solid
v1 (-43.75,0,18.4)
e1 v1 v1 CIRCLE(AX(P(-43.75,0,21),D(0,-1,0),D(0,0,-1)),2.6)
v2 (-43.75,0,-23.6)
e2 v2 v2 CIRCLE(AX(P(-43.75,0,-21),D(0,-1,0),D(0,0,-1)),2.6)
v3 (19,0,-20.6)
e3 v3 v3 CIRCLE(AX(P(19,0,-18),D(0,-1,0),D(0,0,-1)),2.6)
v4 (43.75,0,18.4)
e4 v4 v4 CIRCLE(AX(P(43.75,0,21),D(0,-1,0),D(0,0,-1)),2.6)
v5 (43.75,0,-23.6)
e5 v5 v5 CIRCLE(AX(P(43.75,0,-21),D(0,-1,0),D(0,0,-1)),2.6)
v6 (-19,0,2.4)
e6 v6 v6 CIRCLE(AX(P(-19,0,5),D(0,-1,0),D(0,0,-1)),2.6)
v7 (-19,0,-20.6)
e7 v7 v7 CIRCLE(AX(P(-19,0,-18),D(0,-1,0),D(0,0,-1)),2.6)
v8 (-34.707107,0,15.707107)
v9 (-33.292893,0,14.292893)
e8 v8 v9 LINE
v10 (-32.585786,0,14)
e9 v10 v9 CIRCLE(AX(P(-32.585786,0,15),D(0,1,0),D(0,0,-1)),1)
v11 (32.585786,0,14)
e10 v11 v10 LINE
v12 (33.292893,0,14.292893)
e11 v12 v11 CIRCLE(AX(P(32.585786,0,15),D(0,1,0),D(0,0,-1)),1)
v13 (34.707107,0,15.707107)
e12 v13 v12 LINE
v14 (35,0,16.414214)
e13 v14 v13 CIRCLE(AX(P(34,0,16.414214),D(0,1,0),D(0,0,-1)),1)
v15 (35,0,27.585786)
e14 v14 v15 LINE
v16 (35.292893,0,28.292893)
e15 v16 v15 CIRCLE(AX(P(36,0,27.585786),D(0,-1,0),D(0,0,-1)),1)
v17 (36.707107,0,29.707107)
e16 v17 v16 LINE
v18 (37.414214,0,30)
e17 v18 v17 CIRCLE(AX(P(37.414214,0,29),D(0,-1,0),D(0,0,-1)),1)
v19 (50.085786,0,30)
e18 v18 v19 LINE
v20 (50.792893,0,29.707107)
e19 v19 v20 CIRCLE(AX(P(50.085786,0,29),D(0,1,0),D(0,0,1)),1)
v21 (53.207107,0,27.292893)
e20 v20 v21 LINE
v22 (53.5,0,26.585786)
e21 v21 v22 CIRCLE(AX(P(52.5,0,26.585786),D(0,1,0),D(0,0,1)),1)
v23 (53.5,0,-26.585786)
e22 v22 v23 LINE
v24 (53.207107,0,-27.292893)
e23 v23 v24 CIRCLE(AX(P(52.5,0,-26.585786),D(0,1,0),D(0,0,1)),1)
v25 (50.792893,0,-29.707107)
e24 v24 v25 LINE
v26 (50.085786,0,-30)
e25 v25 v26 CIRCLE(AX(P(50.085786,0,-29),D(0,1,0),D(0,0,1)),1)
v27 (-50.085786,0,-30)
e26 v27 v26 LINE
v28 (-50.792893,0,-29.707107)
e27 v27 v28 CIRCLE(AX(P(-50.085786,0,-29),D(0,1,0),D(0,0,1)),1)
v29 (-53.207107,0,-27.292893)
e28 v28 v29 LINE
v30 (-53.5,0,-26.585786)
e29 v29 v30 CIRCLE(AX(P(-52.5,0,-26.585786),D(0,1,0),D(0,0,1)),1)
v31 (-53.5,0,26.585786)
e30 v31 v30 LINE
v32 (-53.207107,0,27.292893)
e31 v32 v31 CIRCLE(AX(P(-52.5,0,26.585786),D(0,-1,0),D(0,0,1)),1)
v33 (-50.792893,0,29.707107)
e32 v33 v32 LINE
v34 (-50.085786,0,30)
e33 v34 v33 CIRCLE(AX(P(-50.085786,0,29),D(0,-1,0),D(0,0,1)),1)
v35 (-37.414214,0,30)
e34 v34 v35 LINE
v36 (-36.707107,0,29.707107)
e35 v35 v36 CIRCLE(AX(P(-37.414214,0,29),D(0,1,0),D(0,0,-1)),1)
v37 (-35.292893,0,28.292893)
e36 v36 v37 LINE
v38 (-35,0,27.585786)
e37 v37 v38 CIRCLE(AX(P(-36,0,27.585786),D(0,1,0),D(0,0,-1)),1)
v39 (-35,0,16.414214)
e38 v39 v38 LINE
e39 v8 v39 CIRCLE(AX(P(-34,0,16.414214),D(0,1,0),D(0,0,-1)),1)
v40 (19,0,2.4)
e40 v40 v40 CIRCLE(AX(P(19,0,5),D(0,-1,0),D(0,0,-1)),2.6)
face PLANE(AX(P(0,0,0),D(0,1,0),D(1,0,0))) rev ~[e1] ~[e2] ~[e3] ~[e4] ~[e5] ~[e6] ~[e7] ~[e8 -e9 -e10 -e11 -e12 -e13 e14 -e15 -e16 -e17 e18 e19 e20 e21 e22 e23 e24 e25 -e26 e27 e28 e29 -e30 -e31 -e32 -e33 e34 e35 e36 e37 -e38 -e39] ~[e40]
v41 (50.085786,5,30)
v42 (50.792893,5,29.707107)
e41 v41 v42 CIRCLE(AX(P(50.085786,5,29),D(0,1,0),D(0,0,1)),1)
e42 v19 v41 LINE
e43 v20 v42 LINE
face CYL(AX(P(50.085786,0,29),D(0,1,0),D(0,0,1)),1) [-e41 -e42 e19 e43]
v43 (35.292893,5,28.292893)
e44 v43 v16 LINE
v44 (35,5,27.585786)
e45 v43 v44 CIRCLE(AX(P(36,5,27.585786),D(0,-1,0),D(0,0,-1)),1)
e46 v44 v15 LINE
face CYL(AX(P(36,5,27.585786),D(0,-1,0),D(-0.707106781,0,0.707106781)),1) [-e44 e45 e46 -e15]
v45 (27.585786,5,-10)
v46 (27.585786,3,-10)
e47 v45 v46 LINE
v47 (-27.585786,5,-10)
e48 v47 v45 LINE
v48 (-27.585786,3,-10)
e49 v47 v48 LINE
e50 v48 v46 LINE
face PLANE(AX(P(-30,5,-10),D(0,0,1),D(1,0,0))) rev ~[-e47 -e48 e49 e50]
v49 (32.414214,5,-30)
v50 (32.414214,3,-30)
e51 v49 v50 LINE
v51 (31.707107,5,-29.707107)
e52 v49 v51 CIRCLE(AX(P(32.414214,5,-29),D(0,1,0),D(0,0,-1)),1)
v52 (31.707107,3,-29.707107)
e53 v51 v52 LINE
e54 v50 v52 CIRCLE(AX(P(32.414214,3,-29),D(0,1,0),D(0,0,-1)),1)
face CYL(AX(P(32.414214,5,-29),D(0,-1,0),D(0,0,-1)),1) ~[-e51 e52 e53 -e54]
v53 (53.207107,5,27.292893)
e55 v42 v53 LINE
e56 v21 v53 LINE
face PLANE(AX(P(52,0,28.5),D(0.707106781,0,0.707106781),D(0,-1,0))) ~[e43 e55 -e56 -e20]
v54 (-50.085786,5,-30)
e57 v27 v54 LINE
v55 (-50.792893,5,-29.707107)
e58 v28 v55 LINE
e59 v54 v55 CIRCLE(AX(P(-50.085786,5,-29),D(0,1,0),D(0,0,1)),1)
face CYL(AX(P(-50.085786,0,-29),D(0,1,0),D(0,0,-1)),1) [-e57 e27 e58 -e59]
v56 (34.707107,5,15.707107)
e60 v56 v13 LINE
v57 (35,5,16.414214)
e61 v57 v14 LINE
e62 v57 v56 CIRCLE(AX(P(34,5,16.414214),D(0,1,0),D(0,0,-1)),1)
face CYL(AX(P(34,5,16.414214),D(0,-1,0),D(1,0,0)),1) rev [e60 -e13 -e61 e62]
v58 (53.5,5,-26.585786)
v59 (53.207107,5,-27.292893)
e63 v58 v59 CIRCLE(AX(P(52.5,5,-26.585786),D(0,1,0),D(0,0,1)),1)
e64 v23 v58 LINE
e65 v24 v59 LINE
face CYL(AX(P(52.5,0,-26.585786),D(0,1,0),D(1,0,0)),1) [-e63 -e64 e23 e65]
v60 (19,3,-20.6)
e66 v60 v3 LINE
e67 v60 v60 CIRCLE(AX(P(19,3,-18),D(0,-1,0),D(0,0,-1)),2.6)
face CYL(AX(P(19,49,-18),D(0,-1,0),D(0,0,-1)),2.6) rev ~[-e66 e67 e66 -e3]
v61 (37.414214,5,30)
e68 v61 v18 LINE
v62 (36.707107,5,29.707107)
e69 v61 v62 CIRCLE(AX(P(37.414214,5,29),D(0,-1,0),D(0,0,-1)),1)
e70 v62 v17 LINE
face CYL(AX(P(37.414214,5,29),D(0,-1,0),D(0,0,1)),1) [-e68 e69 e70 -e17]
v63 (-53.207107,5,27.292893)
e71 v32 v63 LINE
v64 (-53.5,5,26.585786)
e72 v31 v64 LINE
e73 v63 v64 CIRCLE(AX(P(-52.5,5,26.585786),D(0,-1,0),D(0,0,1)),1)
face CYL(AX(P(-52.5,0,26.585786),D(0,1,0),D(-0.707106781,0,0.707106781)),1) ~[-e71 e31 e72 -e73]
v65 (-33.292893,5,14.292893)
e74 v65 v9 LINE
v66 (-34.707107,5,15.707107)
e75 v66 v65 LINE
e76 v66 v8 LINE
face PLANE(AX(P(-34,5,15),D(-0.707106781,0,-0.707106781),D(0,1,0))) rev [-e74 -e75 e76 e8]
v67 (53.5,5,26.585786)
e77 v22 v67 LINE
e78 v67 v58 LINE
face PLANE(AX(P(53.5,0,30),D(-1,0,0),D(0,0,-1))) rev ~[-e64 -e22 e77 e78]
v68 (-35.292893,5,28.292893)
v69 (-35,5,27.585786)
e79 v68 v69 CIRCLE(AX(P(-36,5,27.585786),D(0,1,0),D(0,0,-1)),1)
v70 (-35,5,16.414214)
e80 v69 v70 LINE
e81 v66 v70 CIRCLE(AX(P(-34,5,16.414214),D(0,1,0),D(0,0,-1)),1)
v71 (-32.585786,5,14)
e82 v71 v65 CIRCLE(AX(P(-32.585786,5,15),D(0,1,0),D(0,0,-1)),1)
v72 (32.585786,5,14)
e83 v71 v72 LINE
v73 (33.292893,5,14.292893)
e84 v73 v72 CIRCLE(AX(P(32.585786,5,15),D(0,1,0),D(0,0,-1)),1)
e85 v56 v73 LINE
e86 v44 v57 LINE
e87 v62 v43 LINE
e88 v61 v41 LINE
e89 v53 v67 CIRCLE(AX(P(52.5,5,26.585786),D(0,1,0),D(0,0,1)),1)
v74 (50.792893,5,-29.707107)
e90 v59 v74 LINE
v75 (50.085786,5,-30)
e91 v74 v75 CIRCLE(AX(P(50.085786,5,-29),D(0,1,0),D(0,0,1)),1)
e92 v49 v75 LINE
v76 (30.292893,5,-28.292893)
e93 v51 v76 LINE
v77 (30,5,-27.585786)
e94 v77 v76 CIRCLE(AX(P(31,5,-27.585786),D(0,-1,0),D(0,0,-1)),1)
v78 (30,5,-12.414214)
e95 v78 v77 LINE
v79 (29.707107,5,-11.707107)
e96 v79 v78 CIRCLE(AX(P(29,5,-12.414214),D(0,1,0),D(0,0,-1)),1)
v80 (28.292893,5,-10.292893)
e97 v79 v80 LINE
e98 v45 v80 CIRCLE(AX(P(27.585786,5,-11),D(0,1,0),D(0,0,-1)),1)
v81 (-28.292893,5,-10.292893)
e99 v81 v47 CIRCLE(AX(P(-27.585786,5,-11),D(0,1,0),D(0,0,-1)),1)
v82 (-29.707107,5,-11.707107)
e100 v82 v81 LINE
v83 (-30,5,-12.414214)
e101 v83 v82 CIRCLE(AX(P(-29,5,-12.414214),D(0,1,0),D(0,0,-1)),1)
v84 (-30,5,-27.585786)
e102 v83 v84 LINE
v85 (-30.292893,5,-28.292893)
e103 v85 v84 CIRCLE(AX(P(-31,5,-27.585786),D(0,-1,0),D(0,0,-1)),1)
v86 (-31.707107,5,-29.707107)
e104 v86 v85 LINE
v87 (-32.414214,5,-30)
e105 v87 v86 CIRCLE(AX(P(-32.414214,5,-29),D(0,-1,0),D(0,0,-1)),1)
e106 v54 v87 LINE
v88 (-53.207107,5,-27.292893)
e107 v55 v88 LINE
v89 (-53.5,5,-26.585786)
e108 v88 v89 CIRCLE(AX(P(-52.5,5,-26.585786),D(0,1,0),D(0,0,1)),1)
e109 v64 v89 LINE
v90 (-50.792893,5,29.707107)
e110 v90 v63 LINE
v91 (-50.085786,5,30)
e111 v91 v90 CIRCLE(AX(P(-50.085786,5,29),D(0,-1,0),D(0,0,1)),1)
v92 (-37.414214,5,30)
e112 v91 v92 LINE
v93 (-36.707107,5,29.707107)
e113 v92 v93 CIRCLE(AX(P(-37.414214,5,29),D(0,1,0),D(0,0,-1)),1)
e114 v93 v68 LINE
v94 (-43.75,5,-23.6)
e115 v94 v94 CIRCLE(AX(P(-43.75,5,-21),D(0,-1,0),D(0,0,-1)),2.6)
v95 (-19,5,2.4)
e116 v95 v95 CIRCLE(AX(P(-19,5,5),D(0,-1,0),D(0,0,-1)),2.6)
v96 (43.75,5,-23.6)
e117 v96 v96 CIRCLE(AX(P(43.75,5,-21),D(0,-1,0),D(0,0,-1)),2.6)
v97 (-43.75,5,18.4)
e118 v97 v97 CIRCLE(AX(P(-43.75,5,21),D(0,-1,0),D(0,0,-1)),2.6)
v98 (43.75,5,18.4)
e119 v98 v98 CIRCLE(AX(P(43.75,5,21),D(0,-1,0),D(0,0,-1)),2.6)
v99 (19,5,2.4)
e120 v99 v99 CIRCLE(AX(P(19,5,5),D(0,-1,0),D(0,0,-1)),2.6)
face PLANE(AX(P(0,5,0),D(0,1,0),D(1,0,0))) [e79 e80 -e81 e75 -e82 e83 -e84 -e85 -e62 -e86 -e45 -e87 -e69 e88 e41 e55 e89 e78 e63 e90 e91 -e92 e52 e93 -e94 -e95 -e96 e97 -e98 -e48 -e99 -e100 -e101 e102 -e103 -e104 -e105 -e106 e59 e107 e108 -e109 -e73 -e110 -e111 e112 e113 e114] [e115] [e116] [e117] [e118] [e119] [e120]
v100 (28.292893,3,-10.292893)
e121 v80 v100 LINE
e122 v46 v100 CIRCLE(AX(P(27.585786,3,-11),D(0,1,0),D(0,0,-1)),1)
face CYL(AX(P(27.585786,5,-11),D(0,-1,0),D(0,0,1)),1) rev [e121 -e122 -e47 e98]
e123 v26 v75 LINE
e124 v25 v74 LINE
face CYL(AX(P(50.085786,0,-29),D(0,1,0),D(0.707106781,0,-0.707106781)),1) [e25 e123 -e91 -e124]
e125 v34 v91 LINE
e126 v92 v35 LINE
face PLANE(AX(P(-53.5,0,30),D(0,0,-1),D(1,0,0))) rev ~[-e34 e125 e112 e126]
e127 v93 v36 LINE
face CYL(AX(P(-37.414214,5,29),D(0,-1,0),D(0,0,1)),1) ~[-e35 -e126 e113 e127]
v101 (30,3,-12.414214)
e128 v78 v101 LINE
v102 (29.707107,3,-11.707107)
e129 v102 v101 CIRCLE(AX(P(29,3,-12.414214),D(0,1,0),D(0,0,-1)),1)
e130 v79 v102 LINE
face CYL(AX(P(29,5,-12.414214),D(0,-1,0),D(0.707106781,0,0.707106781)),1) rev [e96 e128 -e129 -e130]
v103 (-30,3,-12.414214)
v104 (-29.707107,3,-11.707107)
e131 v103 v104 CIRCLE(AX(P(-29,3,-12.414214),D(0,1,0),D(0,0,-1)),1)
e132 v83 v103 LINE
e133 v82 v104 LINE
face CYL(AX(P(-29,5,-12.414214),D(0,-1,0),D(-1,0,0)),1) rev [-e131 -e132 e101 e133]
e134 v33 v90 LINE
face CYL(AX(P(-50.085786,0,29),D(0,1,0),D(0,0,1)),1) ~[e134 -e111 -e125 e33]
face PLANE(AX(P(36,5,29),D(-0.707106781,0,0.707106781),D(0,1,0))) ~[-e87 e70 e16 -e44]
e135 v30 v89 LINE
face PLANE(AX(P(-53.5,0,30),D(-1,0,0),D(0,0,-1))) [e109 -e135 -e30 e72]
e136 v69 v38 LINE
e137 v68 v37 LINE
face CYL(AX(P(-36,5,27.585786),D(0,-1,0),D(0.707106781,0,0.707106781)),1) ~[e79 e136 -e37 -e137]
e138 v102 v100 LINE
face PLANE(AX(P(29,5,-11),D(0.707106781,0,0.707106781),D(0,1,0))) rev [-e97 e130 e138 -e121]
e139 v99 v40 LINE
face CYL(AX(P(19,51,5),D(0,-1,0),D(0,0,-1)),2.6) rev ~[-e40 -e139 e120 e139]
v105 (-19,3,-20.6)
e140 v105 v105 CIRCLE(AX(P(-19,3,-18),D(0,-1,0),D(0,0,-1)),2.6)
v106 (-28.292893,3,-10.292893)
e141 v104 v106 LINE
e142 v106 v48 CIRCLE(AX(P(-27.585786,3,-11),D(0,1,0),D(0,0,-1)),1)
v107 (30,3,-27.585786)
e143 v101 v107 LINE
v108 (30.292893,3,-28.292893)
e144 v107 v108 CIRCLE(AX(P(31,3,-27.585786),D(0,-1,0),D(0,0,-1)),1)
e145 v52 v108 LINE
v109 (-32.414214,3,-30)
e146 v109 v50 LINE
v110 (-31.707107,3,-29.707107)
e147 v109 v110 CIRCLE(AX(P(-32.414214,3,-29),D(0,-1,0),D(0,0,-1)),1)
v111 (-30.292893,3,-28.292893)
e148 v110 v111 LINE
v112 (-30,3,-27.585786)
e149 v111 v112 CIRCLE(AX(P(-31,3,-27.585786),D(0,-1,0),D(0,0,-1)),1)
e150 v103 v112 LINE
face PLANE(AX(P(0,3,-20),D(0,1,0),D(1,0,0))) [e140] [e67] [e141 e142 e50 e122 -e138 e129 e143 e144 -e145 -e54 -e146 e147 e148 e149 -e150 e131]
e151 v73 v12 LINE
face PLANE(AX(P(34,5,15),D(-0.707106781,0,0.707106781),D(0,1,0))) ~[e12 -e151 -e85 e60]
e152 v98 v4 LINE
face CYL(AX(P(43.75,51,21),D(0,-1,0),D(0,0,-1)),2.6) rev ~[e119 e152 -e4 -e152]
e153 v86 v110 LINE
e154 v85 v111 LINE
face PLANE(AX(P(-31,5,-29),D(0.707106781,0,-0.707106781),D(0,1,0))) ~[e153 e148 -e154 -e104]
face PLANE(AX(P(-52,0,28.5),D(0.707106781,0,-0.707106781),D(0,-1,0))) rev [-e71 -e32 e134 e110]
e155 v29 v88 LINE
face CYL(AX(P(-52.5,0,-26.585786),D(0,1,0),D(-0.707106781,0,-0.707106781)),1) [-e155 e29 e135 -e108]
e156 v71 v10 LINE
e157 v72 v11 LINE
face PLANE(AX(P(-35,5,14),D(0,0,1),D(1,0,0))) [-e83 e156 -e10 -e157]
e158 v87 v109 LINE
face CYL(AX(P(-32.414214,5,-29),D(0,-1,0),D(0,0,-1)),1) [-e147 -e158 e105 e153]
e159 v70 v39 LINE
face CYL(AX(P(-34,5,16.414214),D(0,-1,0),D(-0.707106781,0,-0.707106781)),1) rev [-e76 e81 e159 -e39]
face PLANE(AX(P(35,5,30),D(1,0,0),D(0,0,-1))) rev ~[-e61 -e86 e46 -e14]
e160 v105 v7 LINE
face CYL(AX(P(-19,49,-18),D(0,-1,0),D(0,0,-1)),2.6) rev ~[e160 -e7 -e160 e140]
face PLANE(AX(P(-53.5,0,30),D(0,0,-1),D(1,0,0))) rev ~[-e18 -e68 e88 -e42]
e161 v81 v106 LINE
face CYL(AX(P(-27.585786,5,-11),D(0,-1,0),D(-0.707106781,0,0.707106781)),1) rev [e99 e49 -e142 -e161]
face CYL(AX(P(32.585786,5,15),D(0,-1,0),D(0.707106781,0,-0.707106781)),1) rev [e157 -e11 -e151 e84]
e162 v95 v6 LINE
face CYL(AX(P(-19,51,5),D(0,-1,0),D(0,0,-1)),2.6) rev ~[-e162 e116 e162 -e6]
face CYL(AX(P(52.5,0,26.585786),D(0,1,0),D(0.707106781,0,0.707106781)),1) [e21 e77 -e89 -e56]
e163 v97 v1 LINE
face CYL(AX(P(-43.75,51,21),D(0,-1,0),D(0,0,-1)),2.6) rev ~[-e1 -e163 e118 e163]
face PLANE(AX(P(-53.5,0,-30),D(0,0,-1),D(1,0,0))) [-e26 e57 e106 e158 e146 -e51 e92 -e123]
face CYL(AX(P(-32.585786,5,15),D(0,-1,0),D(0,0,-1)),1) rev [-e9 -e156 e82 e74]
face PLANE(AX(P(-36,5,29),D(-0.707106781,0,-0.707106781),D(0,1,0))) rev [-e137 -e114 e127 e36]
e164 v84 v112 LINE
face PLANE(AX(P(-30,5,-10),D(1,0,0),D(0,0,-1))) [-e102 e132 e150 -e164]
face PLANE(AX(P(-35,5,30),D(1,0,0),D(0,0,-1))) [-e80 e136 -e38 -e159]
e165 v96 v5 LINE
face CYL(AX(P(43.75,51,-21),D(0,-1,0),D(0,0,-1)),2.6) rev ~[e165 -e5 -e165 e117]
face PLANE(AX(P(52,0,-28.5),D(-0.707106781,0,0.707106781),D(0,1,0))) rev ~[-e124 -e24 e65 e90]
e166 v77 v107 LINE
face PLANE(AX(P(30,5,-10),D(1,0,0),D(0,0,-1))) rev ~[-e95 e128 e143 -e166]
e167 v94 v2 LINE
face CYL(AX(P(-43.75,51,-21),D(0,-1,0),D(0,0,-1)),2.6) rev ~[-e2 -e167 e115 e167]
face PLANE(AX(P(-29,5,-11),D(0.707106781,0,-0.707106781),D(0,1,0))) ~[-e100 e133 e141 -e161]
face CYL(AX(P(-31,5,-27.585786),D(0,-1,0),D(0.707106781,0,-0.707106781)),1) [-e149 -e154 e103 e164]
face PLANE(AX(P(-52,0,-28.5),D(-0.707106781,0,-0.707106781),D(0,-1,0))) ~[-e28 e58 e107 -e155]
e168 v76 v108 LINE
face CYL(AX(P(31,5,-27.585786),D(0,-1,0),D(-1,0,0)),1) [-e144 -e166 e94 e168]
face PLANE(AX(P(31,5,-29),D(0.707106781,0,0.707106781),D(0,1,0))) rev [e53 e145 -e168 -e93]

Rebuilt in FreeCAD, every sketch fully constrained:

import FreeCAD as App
import Part
import Sketcher
from FreeCAD import Vector
Q = App.Units.Quantity


def edges_at(feature, points):
    """Names of the edges that pass closest to the given points."""
    edges = feature.Shape.Edges
    near = lambda p: min(range(len(edges)), key=lambda i: edges[i].distToShape(Part.Vertex(*p))[0])
    return sorted({f"Edge{near(p) + 1}" for p in points})


def add_polygon(sketch, points):
    """Adds a closed chain of lines whose ends are joined by coincident constraints."""
    first, n = sketch.GeometryCount, len(points)
    for a, b in zip(points, points[1:] + points[:1]):
        sketch.addGeometry(Part.LineSegment(App.Vector(*a, 0), App.Vector(*b, 0)), False)
    for i in range(n):
        sketch.addConstraint(Sketcher.Constraint("Coincident", first + i, 2, first + (i + 1) % n, 1))

doc = App.newDocument("Part")
body = doc.addObject("PartDesign::Body", "Body")

# Sketch on XZ plane
sketch1 = doc.addObject("Sketcher::SketchObject", "Sketch")
body.addObject(sketch1)
sketch1.AttachmentSupport = (doc.XZ_Plane, [""])
sketch1.MapMode = "FlatFace"
add_polygon(sketch1, [(-54, -30), (-54, 30), (54, 30), (54, -30)])  # lines 0-3
sketch1.addConstraint([
    Sketcher.Constraint("Vertical", 0),
    Sketcher.Constraint("Horizontal", 1),
    Sketcher.Constraint("Vertical", 2),
    Sketcher.Constraint("Horizontal", 3),
    Sketcher.Constraint("Symmetric", 0, 2, 2, 2, -1, 1),
    Sketcher.Constraint("DistanceX", 1, 1, 1, 2, Q("107 mm")),
    Sketcher.Constraint("DistanceY", 0, 1, 0, 2, Q("60 mm")),
])
pad1 = doc.addObject("PartDesign::Pad", "Pad")
body.addObject(pad1)
pad1.Profile = sketch1
pad1.Length = 5
pad1.Reversed = True

# Sketch on XZ plane
sketch2 = doc.addObject("Sketcher::SketchObject", "Sketch001")
body.addObject(sketch2)
sketch2.AttachmentSupport = (doc.XZ_Plane, [""])
sketch2.MapMode = "FlatFace"
sketch2.AttachmentOffset = App.Placement(Vector(0, 0, -5), App.Rotation())
add_polygon(sketch2, [(-30, -30), (-30, -10), (30, -10), (30, -30)])  # lines 0-3
sketch2.addConstraint([
    Sketcher.Constraint("Vertical", 0),
    Sketcher.Constraint("Horizontal", 1),
    Sketcher.Constraint("Vertical", 2),
    Sketcher.Constraint("Horizontal", 3),
    Sketcher.Constraint("DistanceX", 1, 1, 1, 2, Q("60 mm")),
    Sketcher.Constraint("DistanceY", 0, 1, 0, 2, Q("20 mm")),
    Sketcher.Constraint("DistanceX", 0, 2, -1, 1, Q("30 mm")),
    Sketcher.Constraint("DistanceY", 0, 2, -1, 1, Q("10 mm")),
])
pocket1 = doc.addObject("PartDesign::Pocket", "Pocket")
body.addObject(pocket1)
pocket1.Profile = sketch2
pocket1.Length = 2
pocket1.Reversed = True

# Sketch on XZ plane
sketch3 = doc.addObject("Sketcher::SketchObject", "Sketch002")
body.addObject(sketch3)
sketch3.AttachmentSupport = (doc.XZ_Plane, [""])
sketch3.MapMode = "FlatFace"
sketch3.AttachmentOffset = App.Placement(Vector(0, 0, -5), App.Rotation())
add_polygon(sketch3, [(-35, 14), (-35, 30), (35, 30), (35, 14)])  # lines 0-3
sketch3.addConstraint([
    Sketcher.Constraint("Vertical", 0),
    Sketcher.Constraint("Horizontal", 1),
    Sketcher.Constraint("Vertical", 2),
    Sketcher.Constraint("Horizontal", 3),
    Sketcher.Constraint("DistanceX", 1, 1, 1, 2, Q("70 mm")),
    Sketcher.Constraint("DistanceY", 0, 1, 0, 2, Q("16 mm")),
    Sketcher.Constraint("DistanceX", 0, 2, -1, 1, Q("35 mm")),
    Sketcher.Constraint("DistanceY", -1, 1, 0, 2, Q("30 mm")),
])
pocket2 = doc.addObject("PartDesign::Pocket", "Pocket001")
body.addObject(pocket2)
pocket2.Profile = sketch3
pocket2.Type = "UpToFirst"
pocket2.Reversed = True
doc.recompute()

chamfer = doc.addObject("PartDesign::Chamfer", "Chamfer")
body.addObject(chamfer)
chamfer.Base = (pocket2, edges_at(pocket2, [
    (-30, 4, -10),
    (-30, 4, -30),
    (30, 4, -30),
    (30, 4, -10),
    (35, 2.5, 14),
    (35, 2.5, 30),
    (-35, 2.5, 30),
    (-35, 2.5, 14),
]))
chamfer.Size = 2
doc.recompute()

chamfer2 = doc.addObject("PartDesign::Chamfer", "Chamfer001")
body.addObject(chamfer2)
chamfer2.Base = (chamfer, edges_at(chamfer, [
    (53.5, 2.5, 30),
    (-53.5, 2.5, 30),
    (-53.5, 2.5, -30),
    (53.5, 2.5, -30),
]))
chamfer2.Size = 3
doc.recompute()

fillet = doc.addObject("PartDesign::Fillet", "Fillet")
body.addObject(fillet)
fillet.Base = (chamfer2, edges_at(chamfer2, [
    (53.5, 2.5, -27),
    (53.5, 2.5, 27),
    (50.5, 2.5, 30),
    (-50.5, 2.5, -30),
    (50.5, 2.5, -30),
    (-53.5, 2.5, 27),
    (-53.5, 2.5, -27),
    (-50.5, 2.5, 30),
    (-32, 4, -30),
    (32, 4, -30),
    (30, 4, -12),
    (30, 4, -28),
    (-28, 4, -10),
    (28, 4, -10),
    (-30, 4, -28),
    (-30, 4, -12),
    (35, 2.5, 16),
    (35, 2.5, 28),
    (37, 2.5, 30),
    (-33, 2.5, 14),
    (33, 2.5, 14),
    (-35, 2.5, 28),
    (-35, 2.5, 16),
    (-37, 2.5, 30),
]))
fillet.Radius = 1

# Sketch on XZ plane
sketch4 = doc.addObject("Sketcher::SketchObject", "Sketch003")
body.addObject(sketch4)
sketch4.AttachmentSupport = (doc.XZ_Plane, [""])
sketch4.MapMode = "FlatFace"
sketch4.AttachmentOffset = App.Placement(Vector(0, 0, -5), App.Rotation())
sketch4.addGeometry([
    Part.Circle(Vector(-43.8, -21, 0), Vector(0, 0, 1), 2.6),  # 0
    Part.Circle(Vector(-43.8, 21, 0), Vector(0, 0, 1), 2.6),  # 1
    Part.Circle(Vector(-19, 5, 0), Vector(0, 0, 1), 2.6),  # 2
    Part.Circle(Vector(19, 5, 0), Vector(0, 0, 1), 2.6),  # 3
    Part.Circle(Vector(43.8, -21, 0), Vector(0, 0, 1), 2.6),  # 4
    Part.Circle(Vector(43.8, 21, 0), Vector(0, 0, 1), 2.6),  # 5
], False)
sketch4.addConstraint([
    Sketcher.Constraint("Equal", 0, 1),
    Sketcher.Constraint("Equal", 1, 2),
    Sketcher.Constraint("Equal", 2, 3),
    Sketcher.Constraint("Equal", 3, 4),
    Sketcher.Constraint("Equal", 4, 5),
    Sketcher.Constraint("Symmetric", 1, 3, 4, 3, -1, 1),
    Sketcher.Constraint("Symmetric", 0, 3, 5, 3, -1, 1),
    Sketcher.Constraint("Symmetric", 2, 3, 3, 3, -2),
    Sketcher.Constraint("Symmetric", 0, 3, 4, 3, -2),
    Sketcher.Constraint("Diameter", 0, Q("5.2 mm")),
    Sketcher.Constraint("DistanceY", 0, 3, -1, 1, Q("21 mm")),
    Sketcher.Constraint("DistanceX", 2, 3, -1, 1, Q("19 mm")),
    Sketcher.Constraint("DistanceY", -1, 1, 2, 3, Q("5 mm")),
    Sketcher.Constraint("DistanceX", 0, 3, 4, 3, Q("87.5 mm")),
])
doc.recompute()
hole = doc.addObject("PartDesign::Hole", "Hole")
body.addObject(hole)
hole.Profile = sketch4
hole.ThreadType = "None"
hole.Diameter = 5.2
hole.DepthType = "Dimension"
hole.Depth = 46
hole.DrillPoint = "Angled"
hole.DrillPointAngle = 118
hole.Reversed = True

# Sketch on XZ plane
sketch5 = doc.addObject("Sketcher::SketchObject", "Sketch004")
body.addObject(sketch5)
sketch5.AttachmentSupport = (doc.XZ_Plane, [""])
sketch5.MapMode = "FlatFace"
sketch5.AttachmentOffset = App.Placement(Vector(0, 0, -3), App.Rotation())
sketch5.addGeometry([
    Part.Circle(Vector(-19, -18, 0), Vector(0, 0, 1), 2.6),
    Part.Circle(Vector(19, -18, 0), Vector(0, 0, 1), 2.6),
], False)
sketch5.addConstraint([
    Sketcher.Constraint("Equal", 0, 1),
    Sketcher.Constraint("Symmetric", 0, 3, 1, 3, -2),
    Sketcher.Constraint("Diameter", 0, Q("5.2 mm")),
    Sketcher.Constraint("DistanceX", 0, 3, -1, 1, Q("19 mm")),
    Sketcher.Constraint("DistanceY", 0, 3, -1, 1, Q("18 mm")),
])
doc.recompute()
hole2 = doc.addObject("PartDesign::Hole", "Hole001")
body.addObject(hole2)
hole2.Profile = sketch5
hole2.ThreadType = "None"
hole2.Diameter = 5.2
hole2.DepthType = "Dimension"
hole2.Depth = 46
hole2.DrillPoint = "Angled"
hole2.DrillPointAngle = 118
hole2.Reversed = True

doc.recompute()
